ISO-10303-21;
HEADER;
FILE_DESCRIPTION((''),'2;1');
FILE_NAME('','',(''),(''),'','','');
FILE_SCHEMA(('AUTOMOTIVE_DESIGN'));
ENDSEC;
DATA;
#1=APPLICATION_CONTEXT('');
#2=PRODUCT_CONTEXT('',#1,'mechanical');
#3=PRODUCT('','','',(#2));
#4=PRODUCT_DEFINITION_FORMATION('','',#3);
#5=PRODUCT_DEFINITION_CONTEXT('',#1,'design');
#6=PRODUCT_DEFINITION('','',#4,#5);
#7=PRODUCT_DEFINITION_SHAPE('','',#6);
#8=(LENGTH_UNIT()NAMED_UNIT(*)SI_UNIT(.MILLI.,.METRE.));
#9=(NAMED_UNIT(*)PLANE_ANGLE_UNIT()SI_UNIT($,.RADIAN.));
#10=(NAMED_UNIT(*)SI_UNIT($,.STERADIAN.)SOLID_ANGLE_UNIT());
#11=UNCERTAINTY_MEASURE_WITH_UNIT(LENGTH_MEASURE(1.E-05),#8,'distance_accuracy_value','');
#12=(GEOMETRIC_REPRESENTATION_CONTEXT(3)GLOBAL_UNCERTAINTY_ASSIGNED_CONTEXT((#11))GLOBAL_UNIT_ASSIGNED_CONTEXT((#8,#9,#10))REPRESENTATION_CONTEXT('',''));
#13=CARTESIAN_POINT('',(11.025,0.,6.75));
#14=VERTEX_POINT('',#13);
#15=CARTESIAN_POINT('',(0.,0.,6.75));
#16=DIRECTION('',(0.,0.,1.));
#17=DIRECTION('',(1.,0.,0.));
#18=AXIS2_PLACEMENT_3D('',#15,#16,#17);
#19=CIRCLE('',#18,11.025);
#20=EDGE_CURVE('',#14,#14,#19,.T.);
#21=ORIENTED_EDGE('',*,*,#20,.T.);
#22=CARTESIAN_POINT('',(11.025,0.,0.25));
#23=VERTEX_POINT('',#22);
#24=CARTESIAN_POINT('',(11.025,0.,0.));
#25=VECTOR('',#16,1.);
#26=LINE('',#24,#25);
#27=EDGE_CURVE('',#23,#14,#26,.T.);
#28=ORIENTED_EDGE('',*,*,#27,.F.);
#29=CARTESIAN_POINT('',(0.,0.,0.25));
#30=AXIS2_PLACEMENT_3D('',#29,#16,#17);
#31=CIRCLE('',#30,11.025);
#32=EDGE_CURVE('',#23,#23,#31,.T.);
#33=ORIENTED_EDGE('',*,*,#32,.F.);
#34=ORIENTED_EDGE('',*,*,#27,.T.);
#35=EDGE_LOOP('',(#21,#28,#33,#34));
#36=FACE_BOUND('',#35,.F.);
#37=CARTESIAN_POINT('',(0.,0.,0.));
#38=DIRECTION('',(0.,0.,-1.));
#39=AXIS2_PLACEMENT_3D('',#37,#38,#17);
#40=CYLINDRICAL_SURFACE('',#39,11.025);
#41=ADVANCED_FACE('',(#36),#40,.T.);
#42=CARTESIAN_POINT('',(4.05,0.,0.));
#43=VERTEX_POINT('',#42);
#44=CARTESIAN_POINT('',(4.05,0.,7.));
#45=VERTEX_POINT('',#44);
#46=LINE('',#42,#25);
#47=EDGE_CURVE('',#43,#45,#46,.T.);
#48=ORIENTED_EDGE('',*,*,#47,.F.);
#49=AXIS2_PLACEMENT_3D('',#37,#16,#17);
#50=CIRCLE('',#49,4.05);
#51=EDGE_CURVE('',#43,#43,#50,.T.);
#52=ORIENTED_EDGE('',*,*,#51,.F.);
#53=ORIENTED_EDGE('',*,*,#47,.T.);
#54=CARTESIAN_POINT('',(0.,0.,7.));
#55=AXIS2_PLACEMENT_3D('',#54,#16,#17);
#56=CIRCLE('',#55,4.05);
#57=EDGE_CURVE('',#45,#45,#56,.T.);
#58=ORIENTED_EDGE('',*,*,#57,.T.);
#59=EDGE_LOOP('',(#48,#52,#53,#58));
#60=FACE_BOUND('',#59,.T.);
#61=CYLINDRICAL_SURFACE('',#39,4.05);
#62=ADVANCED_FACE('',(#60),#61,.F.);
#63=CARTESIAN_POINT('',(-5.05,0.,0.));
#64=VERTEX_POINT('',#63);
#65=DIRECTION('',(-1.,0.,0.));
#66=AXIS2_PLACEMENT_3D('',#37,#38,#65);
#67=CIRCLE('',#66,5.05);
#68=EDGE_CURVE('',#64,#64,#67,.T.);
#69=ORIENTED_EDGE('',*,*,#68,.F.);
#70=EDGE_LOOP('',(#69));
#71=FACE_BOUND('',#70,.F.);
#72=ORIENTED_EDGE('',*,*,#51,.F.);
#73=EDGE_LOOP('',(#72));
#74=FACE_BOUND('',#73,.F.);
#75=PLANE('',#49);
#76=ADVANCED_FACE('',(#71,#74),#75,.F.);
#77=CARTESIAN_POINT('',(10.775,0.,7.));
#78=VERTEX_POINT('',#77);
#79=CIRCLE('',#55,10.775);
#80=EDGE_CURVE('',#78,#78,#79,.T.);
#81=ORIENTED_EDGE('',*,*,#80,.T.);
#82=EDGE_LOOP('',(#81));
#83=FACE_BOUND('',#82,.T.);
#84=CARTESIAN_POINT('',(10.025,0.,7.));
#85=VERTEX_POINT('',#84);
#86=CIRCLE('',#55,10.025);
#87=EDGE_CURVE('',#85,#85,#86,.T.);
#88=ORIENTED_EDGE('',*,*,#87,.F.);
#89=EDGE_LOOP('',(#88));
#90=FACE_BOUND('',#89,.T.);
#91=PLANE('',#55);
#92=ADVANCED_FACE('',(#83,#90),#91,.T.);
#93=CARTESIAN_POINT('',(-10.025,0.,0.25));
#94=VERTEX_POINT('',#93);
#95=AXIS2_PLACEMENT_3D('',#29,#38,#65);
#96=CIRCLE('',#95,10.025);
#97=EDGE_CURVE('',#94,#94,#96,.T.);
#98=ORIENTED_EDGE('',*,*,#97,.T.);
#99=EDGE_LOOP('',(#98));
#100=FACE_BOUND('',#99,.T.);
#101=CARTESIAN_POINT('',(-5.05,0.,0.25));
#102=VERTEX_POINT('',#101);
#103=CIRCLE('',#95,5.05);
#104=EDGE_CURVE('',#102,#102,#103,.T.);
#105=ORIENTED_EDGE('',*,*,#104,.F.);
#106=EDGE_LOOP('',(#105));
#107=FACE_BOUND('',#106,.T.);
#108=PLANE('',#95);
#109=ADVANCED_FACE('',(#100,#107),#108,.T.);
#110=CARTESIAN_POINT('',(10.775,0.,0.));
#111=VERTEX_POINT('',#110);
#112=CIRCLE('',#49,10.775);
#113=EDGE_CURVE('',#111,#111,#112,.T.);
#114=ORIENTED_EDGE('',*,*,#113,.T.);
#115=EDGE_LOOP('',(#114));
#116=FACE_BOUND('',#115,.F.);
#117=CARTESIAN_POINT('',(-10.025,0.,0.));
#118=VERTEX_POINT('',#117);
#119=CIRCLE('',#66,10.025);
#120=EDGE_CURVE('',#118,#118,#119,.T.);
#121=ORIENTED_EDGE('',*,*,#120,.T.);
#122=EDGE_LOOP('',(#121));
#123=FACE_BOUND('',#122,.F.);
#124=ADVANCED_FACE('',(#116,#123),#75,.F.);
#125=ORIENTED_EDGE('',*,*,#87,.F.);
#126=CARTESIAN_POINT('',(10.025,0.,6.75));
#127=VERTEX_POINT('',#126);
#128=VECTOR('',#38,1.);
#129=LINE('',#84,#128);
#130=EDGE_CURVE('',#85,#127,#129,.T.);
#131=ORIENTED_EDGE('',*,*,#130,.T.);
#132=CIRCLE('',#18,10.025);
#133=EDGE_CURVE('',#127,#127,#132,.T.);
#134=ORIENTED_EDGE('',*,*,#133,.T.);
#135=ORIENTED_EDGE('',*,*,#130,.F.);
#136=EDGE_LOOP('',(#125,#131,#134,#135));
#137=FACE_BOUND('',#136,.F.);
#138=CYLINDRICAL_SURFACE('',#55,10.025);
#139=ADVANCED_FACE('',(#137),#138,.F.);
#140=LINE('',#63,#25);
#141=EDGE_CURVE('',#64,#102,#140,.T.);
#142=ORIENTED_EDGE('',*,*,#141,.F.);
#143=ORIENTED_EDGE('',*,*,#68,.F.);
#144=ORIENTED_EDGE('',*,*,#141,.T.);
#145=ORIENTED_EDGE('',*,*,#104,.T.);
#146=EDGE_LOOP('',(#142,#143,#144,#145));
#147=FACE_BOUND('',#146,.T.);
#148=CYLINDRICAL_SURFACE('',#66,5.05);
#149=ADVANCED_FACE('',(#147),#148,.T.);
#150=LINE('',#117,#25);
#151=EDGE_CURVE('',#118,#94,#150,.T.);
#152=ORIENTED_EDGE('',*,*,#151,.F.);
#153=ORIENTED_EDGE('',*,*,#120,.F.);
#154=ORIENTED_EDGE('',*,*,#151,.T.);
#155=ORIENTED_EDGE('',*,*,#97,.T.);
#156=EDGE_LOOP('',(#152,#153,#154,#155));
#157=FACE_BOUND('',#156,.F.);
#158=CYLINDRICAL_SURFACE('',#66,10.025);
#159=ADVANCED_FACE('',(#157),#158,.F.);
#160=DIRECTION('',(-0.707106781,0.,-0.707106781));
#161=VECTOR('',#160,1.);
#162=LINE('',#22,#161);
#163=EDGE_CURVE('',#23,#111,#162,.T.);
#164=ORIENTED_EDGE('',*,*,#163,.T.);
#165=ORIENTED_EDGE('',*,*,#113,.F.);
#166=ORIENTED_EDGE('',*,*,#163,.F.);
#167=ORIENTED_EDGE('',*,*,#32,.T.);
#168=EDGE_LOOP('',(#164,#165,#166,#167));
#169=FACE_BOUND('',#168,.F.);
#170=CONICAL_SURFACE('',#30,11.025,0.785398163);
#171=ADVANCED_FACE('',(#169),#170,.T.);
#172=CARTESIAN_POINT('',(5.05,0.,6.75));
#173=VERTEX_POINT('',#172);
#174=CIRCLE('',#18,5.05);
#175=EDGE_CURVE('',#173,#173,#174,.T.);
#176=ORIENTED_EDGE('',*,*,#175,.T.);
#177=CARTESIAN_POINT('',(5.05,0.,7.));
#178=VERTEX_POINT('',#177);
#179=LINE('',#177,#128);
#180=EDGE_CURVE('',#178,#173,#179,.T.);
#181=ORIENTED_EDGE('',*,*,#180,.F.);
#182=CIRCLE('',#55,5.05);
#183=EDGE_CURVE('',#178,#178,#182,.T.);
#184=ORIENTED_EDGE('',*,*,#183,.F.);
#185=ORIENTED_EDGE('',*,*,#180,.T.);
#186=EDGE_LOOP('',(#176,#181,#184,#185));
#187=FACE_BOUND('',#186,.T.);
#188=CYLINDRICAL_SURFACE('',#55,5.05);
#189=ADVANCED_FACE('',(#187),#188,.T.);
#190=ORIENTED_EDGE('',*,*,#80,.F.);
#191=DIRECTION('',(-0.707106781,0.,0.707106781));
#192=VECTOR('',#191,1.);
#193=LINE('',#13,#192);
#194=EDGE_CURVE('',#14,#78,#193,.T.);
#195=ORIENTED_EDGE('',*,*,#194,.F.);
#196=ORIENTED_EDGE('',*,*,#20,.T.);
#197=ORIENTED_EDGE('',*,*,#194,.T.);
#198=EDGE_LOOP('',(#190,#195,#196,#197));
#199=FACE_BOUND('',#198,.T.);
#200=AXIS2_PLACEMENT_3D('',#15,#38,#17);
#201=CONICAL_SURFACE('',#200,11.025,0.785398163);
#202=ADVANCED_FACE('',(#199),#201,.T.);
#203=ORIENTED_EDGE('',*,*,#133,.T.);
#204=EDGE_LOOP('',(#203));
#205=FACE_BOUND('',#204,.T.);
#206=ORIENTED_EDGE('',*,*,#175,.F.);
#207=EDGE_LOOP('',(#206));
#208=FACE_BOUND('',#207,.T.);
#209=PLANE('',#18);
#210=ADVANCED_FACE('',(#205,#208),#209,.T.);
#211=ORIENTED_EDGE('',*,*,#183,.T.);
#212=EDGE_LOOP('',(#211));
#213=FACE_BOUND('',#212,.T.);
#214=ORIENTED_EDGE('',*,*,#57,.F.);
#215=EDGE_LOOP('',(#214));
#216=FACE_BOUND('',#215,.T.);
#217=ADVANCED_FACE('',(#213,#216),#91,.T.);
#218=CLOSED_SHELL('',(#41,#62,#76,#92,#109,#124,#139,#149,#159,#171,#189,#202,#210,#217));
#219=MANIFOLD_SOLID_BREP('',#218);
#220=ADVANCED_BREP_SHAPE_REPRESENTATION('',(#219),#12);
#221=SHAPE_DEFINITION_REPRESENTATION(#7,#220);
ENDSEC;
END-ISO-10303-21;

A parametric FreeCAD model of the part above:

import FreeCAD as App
import Part
import Sketcher
from FreeCAD import Vector
Q = App.Units.Quantity


def edges_at(feature, points):
    """Names of the edges that pass closest to the given points."""
    edges = feature.Shape.Edges
    near = lambda p: min(range(len(edges)), key=lambda i: edges[i].distToShape(Part.Vertex(*p))[0])
    return sorted({f"Edge{near(p) + 1}" for p in points})

doc = App.newDocument("Part")
body = doc.addObject("PartDesign::Body", "Body")

sketch1 = doc.addObject("Sketcher::SketchObject", "Sketch")
body.addObject(sketch1)
sketch1.AttachmentSupport = (doc.XY_Plane, [""])
sketch1.MapMode = "FlatFace"
sketch1.addGeometry([
    Part.Circle(Vector(0, 0, 0), Vector(0, 0, 1), 11),
    Part.Circle(Vector(0, 0, 0), Vector(0, 0, 1), 4),
], False)
sketch1.addConstraint([
    Sketcher.Constraint("Coincident", 0, 3, -1, 1),
    Sketcher.Constraint("Coincident", 1, 3, -1, 1),
    Sketcher.Constraint("Diameter", 1, Q("8.1 mm")),
    Sketcher.Constraint("Diameter", 0, Q("22.05 mm")),
])
pad1 = doc.addObject("PartDesign::Pad", "Pad")
body.addObject(pad1)
pad1.Profile = sketch1
pad1.Length = 7

sketch2 = doc.addObject("Sketcher::SketchObject", "Sketch001")
body.addObject(sketch2)
sketch2.AttachmentSupport = (doc.XY_Plane, [""])
sketch2.MapMode = "FlatFace"
sketch2.AttachmentOffset = App.Placement(Vector(0, 0, 7), App.Rotation())
sketch2.addGeometry([
    Part.Circle(Vector(0, 0, 0), Vector(0, 0, 1), 10),
    Part.Circle(Vector(0, 0, 0), Vector(0, 0, 1), 5),
], False)
sketch2.addConstraint([
    Sketcher.Constraint("Coincident", 0, 3, -1, 1),
    Sketcher.Constraint("Coincident", 1, 3, -1, 1),
    Sketcher.Constraint("Diameter", 1, Q("10.1 mm")),
    Sketcher.Constraint("Diameter", 0, Q("20.05 mm")),
])
pocket1 = doc.addObject("PartDesign::Pocket", "Pocket")
body.addObject(pocket1)
pocket1.Profile = sketch2
pocket1.Length = 0.25

sketch3 = doc.addObject("Sketcher::SketchObject", "Sketch002")
body.addObject(sketch3)
sketch3.AttachmentSupport = (doc.XY_Plane, [""])
sketch3.MapMode = "FlatFace"
sketch3.addGeometry([
    Part.Circle(Vector(0, 0, 0), Vector(0, 0, 1), 10),
    Part.Circle(Vector(0, 0, 0), Vector(0, 0, 1), 5),
], False)
sketch3.addConstraint([
    Sketcher.Constraint("Coincident", 0, 3, -1, 1),
    Sketcher.Constraint("Coincident", 1, 3, -1, 1),
    Sketcher.Constraint("Diameter", 1, Q("10.1 mm")),
    Sketcher.Constraint("Diameter", 0, Q("20.05 mm")),
])
pocket2 = doc.addObject("PartDesign::Pocket", "Pocket001")
body.addObject(pocket2)
pocket2.Profile = sketch3
pocket2.Length = 0.25
pocket2.Reversed = True
doc.recompute()

chamfer = doc.addObject("PartDesign::Chamfer", "Chamfer")
body.addObject(chamfer)
chamfer.Base = (pocket2, edges_at(pocket2, [(-11.025, 0, 7), (-11.025, 0, 0)]))
chamfer.Size = 0.25

doc.recompute()
